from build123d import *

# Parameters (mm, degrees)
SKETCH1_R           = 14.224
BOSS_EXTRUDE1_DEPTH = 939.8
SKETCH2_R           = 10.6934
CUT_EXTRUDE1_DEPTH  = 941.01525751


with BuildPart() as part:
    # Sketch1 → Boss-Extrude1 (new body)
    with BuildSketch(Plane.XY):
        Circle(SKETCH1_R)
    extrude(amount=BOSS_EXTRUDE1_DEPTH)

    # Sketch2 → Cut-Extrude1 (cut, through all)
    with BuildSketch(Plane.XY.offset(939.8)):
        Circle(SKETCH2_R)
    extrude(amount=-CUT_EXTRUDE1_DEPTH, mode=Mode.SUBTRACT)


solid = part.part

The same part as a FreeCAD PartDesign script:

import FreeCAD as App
import Part
import Sketcher
from FreeCAD import Vector
Q = App.Units.Quantity

doc = App.newDocument("Part")
params = doc.addObject("Spreadsheet::Sheet", "Params")
for row, (alias, value) in enumerate([
    ("sketch1_diameter", "1.12 in"),
    ("pad1_length", "37 in"),
    ("sketch2_diameter", "0.842 in"),
], start=1):
    params.set(f"A{row}", alias)
    params.set(f"B{row}", "=" + value)
    params.setAlias(f"B{row}", alias)

body = doc.addObject("PartDesign::Body", "Body")

# Sketch on XY plane
sketch1 = body.newObject("Sketcher::SketchObject", "Sketch")
sketch1.AttachmentSupport = (doc.getObject("XY_Plane"), [""])
sketch1.MapMode = "FlatFace"
sketch1.addGeometry(Part.Circle(Vector(0, 0, 0), Vector(0, 0, 1), 14), False)
sketch1.addConstraint([
    Sketcher.Constraint("Coincident", 0, 3, -1, 1),
    Sketcher.Constraint("Diameter", 0, Q("1.12 in")),
])
sketch1.setExpression("Constraints[1]", "Params.sketch1_diameter")
pad1 = body.newObject("PartDesign::Pad", "Pad")
pad1.Profile = sketch1
pad1.setExpression("Length", "Params.pad1_length")

# Sketch on XY plane
sketch2 = body.newObject("Sketcher::SketchObject", "Sketch001")
sketch2.AttachmentSupport = (doc.getObject("XY_Plane"), [""])
sketch2.MapMode = "FlatFace"
sketch2.AttachmentOffset = App.Placement(Vector(0, 0, 37 * 25.4), App.Rotation())
sketch2.addGeometry(Part.Circle(Vector(0, 0, 0), Vector(0, 0, 1), 11), False)
sketch2.addConstraint([
    Sketcher.Constraint("Coincident", 0, 3, -1, 1),
    Sketcher.Constraint("Diameter", 0, Q("0.842 in")),
])
sketch2.setExpression("Constraints[1]", "Params.sketch2_diameter")
pocket1 = body.newObject("PartDesign::Pocket", "Pocket")
pocket1.Profile = sketch2
pocket1.Type = "ThroughAll"

doc.recompute()
